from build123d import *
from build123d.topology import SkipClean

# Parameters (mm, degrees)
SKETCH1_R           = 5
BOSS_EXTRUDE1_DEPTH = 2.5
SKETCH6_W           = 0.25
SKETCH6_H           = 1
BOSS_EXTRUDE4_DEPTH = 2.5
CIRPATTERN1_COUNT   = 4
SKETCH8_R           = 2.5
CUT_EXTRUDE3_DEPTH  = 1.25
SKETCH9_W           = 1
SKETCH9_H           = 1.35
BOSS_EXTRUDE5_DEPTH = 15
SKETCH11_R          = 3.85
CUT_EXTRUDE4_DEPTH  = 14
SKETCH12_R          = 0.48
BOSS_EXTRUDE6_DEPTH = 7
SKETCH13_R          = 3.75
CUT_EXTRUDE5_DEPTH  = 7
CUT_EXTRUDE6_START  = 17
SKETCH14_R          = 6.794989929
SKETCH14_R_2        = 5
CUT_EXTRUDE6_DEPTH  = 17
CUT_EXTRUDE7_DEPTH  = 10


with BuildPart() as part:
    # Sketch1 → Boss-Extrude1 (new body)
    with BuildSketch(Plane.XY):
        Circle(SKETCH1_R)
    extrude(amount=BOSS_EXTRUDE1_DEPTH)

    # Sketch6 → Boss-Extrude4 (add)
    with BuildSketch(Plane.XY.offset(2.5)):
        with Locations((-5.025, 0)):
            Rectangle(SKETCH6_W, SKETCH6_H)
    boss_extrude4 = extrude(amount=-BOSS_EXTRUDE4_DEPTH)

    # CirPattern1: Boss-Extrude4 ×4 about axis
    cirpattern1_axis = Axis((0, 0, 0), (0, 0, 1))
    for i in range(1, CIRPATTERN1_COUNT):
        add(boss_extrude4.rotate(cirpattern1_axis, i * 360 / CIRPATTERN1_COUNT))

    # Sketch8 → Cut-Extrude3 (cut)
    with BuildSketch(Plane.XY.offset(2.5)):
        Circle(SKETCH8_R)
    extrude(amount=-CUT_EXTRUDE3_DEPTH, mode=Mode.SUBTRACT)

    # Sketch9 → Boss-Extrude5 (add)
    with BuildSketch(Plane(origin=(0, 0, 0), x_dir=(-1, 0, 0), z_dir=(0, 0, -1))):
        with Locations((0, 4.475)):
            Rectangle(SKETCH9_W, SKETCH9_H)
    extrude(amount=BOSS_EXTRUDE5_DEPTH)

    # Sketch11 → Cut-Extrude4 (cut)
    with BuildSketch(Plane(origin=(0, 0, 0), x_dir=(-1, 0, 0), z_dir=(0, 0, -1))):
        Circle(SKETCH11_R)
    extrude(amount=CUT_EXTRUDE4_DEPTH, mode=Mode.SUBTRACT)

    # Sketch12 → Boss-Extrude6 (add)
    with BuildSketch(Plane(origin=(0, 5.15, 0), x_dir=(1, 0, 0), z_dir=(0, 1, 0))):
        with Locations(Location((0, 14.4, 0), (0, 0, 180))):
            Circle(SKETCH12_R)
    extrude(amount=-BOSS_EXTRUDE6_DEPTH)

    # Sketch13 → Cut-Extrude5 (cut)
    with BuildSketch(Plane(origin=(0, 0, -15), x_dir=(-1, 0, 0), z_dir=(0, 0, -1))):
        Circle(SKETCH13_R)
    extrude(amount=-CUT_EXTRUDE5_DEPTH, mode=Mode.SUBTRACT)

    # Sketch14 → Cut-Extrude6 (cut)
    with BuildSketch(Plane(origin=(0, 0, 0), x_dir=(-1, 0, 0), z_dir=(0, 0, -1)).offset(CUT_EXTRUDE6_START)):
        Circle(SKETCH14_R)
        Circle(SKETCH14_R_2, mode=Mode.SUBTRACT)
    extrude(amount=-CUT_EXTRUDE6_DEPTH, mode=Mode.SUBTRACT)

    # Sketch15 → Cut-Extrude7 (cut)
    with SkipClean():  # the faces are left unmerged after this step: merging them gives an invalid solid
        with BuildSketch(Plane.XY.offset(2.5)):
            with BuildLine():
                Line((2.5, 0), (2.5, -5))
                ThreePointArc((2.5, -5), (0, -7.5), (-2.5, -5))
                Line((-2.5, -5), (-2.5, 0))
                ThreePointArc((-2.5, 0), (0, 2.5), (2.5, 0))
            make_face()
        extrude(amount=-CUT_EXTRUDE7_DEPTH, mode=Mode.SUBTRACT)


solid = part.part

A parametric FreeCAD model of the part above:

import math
import FreeCAD as App
import Part
import Sketcher

V = App.Vector

doc = App.newDocument("Part")
body = doc.addObject("PartDesign::Body", "Body")

sketch1 = body.newObject("Sketcher::SketchObject", "Sketch")
sketch1.AttachmentSupport = (doc.getObject("XY_Plane"), [""])
sketch1.MapMode = "FlatFace"
sketch1.addGeometry(Part.Circle(V(0, 0, 0), V(0, 0, 1), 5), False)
sketch1.addConstraint([
    Sketcher.Constraint("Coincident", 0, 3, -1, 1),
    Sketcher.Constraint("Diameter", 0, 10.0),
])
pad1 = body.newObject("PartDesign::Pad", "Pad")
pad1.Profile = sketch1
pad1.Length = 2.5

sketch2 = body.newObject("Sketcher::SketchObject", "Sketch001")
sketch2.AttachmentSupport = (doc.getObject("XY_Plane"), [""])
sketch2.MapMode = "FlatFace"
sketch2.AttachmentOffset = App.Placement(V(0, 0, 2.5), App.Rotation())
sketch2.addGeometry([
    Part.LineSegment(V(-5.15, 0.5, 0), V(-5.15, -0.5, 0)),
    Part.LineSegment(V(-5.15, -0.5, 0), V(-4.9, -0.5, 0)),
    Part.LineSegment(V(-4.9, -0.5, 0), V(-4.9, 0.5, 0)),
    Part.LineSegment(V(-4.9, 0.5, 0), V(-5.15, 0.5, 0)),
], False)
sketch2.addConstraint([
    Sketcher.Constraint("Coincident", 0, 2, 1, 1),
    Sketcher.Constraint("Coincident", 1, 2, 2, 1),
    Sketcher.Constraint("Coincident", 2, 2, 3, 1),
    Sketcher.Constraint("Coincident", 3, 2, 0, 1),
    Sketcher.Constraint("Vertical", 0),
    Sketcher.Constraint("Horizontal", 1),
    Sketcher.Constraint("Vertical", 2),
    Sketcher.Constraint("Horizontal", 3),
    Sketcher.Constraint("DistanceY", 0, 2, 0, 1, 1.0),
    Sketcher.Constraint("DistanceX", 1, 1, 1, 2, 0.25),
    Sketcher.Constraint("DistanceY", 0, 2, -1, 1, 0.5),
    Sketcher.Constraint("DistanceX", 1, 2, -1, 1, 4.9),
])
pad2 = body.newObject("PartDesign::Pad", "Pad001")
pad2.Profile = sketch2
pad2.Length = 2.5
pad2.Reversed = True
doc.recompute()

polarpattern = body.newObject("PartDesign::PolarPattern", "PolarPattern")
polarpattern.Originals = [pad2]
polarpattern.Axis = (doc.getObject("Z_Axis"), [""])
polarpattern.Angle = 360
polarpattern.Occurrences = 4
body.Tip = polarpattern

sketch3 = body.newObject("Sketcher::SketchObject", "Sketch002")
sketch3.AttachmentSupport = (doc.getObject("XY_Plane"), [""])
sketch3.MapMode = "FlatFace"
sketch3.AttachmentOffset = App.Placement(V(0, 0, 2.5), App.Rotation())
sketch3.addGeometry(Part.Circle(V(0, 0, 0), V(0, 0, 1), 2.5), False)
sketch3.addConstraint([
    Sketcher.Constraint("Coincident", 0, 3, -1, 1),
    Sketcher.Constraint("Diameter", 0, 5.0),
])
pocket1 = body.newObject("PartDesign::Pocket", "Pocket")
pocket1.Profile = sketch3
pocket1.Length = 1.25

sketch4 = body.newObject("Sketcher::SketchObject", "Sketch003")
sketch4.AttachmentSupport = (doc.getObject("XY_Plane"), [""])
sketch4.MapMode = "FlatFace"
sketch4.addGeometry([
    Part.LineSegment(V(0.5, 5.15, 0), V(0.5, 3.8, 0)),
    Part.LineSegment(V(0.5, 3.8, 0), V(-0.5, 3.8, 0)),
    Part.LineSegment(V(-0.5, 3.8, 0), V(-0.5, 5.15, 0)),
    Part.LineSegment(V(-0.5, 5.15, 0), V(0.5, 5.15, 0)),
], False)
sketch4.addConstraint([
    Sketcher.Constraint("Coincident", 0, 2, 1, 1),
    Sketcher.Constraint("Coincident", 1, 2, 2, 1),
    Sketcher.Constraint("Coincident", 2, 2, 3, 1),
    Sketcher.Constraint("Coincident", 3, 2, 0, 1),
    Sketcher.Constraint("Vertical", 0),
    Sketcher.Constraint("Horizontal", 1),
    Sketcher.Constraint("Vertical", 2),
    Sketcher.Constraint("Horizontal", 3),
    Sketcher.Constraint("DistanceX", 1, 2, 1, 1, 1.0),
    Sketcher.Constraint("DistanceY", 0, 2, 0, 1, 1.35),
    Sketcher.Constraint("DistanceX", -1, 1, 0, 2, 0.5),
    Sketcher.Constraint("DistanceY", -1, 1, 0, 2, 3.8),
])
pad3 = body.newObject("PartDesign::Pad", "Pad002")
pad3.Profile = sketch4
pad3.Length = 15
pad3.Reversed = True

sketch5 = body.newObject("Sketcher::SketchObject", "Sketch004")
sketch5.AttachmentSupport = (doc.getObject("XY_Plane"), [""])
sketch5.MapMode = "FlatFace"
sketch5.addGeometry(Part.Circle(V(0, 0, 0), V(0, 0, 1), 3.85), False)
sketch5.addConstraint([
    Sketcher.Constraint("Coincident", 0, 3, -1, 1),
    Sketcher.Constraint("Diameter", 0, 7.7),
])
pocket2 = body.newObject("PartDesign::Pocket", "Pocket001")
pocket2.Profile = sketch5
pocket2.Length = 14

sketch6 = body.newObject("Sketcher::SketchObject", "Sketch005")
sketch6.AttachmentSupport = (doc.getObject("XZ_Plane"), [""])
sketch6.MapMode = "FlatFace"
sketch6.AttachmentOffset = App.Placement(V(0, 0, -5.15), App.Rotation())
sketch6.addGeometry(Part.Circle(V(0, -14.4, 0), V(0, 0, 1), 0.48), False)
sketch6.addConstraint([
    Sketcher.Constraint("PointOnObject", 0, 3, -2),
    Sketcher.Constraint("Diameter", 0, 0.96),
    Sketcher.Constraint("DistanceY", 0, 3, -1, 1, 14.4),
])
pad4 = body.newObject("PartDesign::Pad", "Pad003")
pad4.Profile = sketch6
pad4.Length = 7

sketch7 = body.newObject("Sketcher::SketchObject", "Sketch006")
sketch7.AttachmentSupport = (doc.getObject("XY_Plane"), [""])
sketch7.MapMode = "FlatFace"
sketch7.AttachmentOffset = App.Placement(V(0, 0, -15), App.Rotation())
sketch7.addGeometry(Part.Circle(V(0, 0, 0), V(0, 0, 1), 3.75), False)
sketch7.addConstraint([
    Sketcher.Constraint("Coincident", 0, 3, -1, 1),
    Sketcher.Constraint("Diameter", 0, 7.5),
])
pocket3 = body.newObject("PartDesign::Pocket", "Pocket002")
pocket3.Profile = sketch7
pocket3.Length = 7
pocket3.Reversed = True

sketch8 = body.newObject("Sketcher::SketchObject", "Sketch007")
sketch8.AttachmentSupport = (doc.getObject("XY_Plane"), [""])
sketch8.MapMode = "FlatFace"
sketch8.AttachmentOffset = App.Placement(V(0, 0, -17), App.Rotation())
sketch8.addGeometry([
    Part.Circle(V(0, 0, 0), V(0, 0, 1), 6.79499),
    Part.Circle(V(0, 0, 0), V(0, 0, 1), 5),
], False)
sketch8.addConstraint([
    Sketcher.Constraint("Coincident", 0, 3, -1, 1),
    Sketcher.Constraint("Coincident", 1, 3, -1, 1),
    Sketcher.Constraint("Diameter", 1, 10.0),
    Sketcher.Constraint("Diameter", 0, 13.58998),
])
pocket4 = body.newObject("PartDesign::Pocket", "Pocket003")
pocket4.Profile = sketch8
pocket4.Length = 17
pocket4.Reversed = True

sketch9 = body.newObject("Sketcher::SketchObject", "Sketch008")
sketch9.AttachmentSupport = (doc.getObject("XY_Plane"), [""])
sketch9.MapMode = "FlatFace"
sketch9.AttachmentOffset = App.Placement(V(0, 0, 2.5), App.Rotation())
sketch9.addGeometry([
    Part.LineSegment(V(2.5, -5, 0), V(2.5, 0, 0)),
    Part.ArcOfCircle(Part.Circle(V(0, 0, 0), V(0, 0, 1), 2.5), math.radians(0), math.radians(180)),
    Part.LineSegment(V(-2.5, 0, 0), V(-2.5, -5, 0)),
    Part.ArcOfCircle(Part.Circle(V(0, -5, 0), V(0, 0, 1), 2.5), math.radians(180), math.radians(360)),
], False)
sketch9.addConstraint([
    Sketcher.Constraint("Tangent", 0, 2, 1, 1),
    Sketcher.Constraint("Tangent", 1, 2, 2, 1),
    Sketcher.Constraint("Tangent", 2, 2, 3, 1),
    Sketcher.Constraint("Tangent", 3, 2, 0, 1),
    Sketcher.Constraint("Vertical", 0),
    Sketcher.Constraint("Vertical", 2),
    Sketcher.Constraint("Coincident", 1, 3, -1, 1),
    Sketcher.Constraint("Radius", 1, 2.5),
    Sketcher.Constraint("DistanceY", 0, 1, 0, 2, 5.0),
])
pocket5 = body.newObject("PartDesign::Pocket", "Pocket004")
pocket5.Profile = sketch9
pocket5.Length = 10

doc.recompute()
